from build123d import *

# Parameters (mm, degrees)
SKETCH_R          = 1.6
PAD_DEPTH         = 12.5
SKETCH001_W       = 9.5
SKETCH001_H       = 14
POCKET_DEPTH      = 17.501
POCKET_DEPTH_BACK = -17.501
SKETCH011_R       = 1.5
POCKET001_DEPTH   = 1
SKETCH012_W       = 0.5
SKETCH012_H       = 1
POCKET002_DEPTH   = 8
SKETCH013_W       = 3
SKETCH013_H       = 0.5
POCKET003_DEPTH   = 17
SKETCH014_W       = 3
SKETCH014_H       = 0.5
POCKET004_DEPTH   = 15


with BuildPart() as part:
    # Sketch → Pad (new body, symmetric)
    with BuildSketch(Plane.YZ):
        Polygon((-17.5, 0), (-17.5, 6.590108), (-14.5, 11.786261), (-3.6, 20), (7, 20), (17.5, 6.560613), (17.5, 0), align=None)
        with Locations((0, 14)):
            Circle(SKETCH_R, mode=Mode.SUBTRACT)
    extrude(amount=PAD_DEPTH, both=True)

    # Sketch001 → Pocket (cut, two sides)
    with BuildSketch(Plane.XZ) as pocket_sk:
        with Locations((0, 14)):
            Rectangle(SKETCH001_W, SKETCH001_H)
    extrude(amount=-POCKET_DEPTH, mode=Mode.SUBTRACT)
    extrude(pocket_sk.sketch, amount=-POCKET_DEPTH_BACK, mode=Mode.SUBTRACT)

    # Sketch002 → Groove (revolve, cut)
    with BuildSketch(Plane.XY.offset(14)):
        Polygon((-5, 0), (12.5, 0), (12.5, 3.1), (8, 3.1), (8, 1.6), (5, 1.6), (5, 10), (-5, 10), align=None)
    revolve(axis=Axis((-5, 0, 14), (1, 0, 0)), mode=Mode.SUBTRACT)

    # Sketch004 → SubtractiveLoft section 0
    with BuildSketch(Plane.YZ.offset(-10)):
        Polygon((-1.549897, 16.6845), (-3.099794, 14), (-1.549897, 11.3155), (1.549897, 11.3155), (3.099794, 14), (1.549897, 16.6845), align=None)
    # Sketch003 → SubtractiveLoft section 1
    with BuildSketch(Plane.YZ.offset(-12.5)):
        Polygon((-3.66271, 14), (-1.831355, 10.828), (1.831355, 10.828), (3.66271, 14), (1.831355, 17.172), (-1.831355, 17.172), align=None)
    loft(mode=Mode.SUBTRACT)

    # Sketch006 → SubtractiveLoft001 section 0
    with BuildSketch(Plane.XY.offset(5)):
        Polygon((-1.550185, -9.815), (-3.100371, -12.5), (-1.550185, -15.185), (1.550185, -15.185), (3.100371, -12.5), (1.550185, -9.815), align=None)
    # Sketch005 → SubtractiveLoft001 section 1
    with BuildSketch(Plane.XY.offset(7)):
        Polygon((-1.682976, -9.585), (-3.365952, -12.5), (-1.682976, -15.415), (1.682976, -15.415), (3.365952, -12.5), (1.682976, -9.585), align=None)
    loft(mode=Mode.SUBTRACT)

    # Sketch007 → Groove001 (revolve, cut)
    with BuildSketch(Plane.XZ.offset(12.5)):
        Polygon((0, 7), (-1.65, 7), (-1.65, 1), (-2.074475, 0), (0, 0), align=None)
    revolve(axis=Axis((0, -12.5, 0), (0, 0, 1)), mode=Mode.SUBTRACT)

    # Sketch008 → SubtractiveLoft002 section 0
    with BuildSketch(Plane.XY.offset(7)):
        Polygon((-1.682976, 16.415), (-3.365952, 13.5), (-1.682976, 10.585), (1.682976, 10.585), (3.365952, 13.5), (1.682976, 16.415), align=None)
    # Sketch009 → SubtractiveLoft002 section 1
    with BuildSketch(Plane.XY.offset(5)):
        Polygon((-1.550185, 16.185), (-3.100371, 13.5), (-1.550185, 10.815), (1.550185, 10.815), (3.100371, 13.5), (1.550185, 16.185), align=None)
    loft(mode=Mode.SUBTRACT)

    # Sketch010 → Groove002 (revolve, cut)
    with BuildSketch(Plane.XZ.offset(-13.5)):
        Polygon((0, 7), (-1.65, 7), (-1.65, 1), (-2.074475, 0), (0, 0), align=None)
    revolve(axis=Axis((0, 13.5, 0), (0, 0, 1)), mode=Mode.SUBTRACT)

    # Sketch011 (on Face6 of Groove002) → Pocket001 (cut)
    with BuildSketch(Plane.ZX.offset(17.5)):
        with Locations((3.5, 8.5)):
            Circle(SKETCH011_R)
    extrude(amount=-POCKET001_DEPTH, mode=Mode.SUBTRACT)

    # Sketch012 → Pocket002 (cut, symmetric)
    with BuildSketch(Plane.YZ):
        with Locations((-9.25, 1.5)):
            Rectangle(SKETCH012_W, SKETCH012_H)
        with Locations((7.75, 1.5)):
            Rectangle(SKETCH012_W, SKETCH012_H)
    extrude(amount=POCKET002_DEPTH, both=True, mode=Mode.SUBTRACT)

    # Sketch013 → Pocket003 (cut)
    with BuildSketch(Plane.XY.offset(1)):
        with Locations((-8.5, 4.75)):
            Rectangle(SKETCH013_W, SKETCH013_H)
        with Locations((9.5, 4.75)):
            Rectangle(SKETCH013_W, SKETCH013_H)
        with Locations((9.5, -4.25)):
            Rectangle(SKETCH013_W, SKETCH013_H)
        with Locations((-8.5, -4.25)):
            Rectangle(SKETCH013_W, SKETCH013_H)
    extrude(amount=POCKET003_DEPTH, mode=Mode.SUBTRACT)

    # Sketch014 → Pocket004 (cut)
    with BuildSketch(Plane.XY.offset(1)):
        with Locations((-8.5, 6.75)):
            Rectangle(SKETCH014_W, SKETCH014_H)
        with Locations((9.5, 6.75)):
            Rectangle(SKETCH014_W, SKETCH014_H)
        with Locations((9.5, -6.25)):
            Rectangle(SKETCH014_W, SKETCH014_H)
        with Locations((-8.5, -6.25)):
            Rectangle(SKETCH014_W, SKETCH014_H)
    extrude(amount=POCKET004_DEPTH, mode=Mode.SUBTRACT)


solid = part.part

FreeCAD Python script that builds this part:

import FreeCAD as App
import Part
import Sketcher
from FreeCAD import Vector
Q = App.Units.Quantity

doc = App.newDocument("Part")
params = doc.addObject("Spreadsheet::Sheet", "Params")
for row, (alias, value) in enumerate([
    ("sketch1_diameter", "3.2 mm"),
    ("sketch1_width", "35 mm"),
    ("sketch1_length", "6 mm"),
    ("sketch1_width2", "10.6 mm"),
    ("pad1_length", "25 mm"),
    ("sketch2_height", "14 mm"),
    ("sketch2_width", "9.5 mm"),
    ("sketch3_width", "3 mm"),
    ("sketch3_width2", "10 mm"),
    ("sketch3_width3", "17.5 mm"),
    ("sketch3_height", "3.1 mm"),
    ("sketch3_height2", "1.5 mm"),
    ("groove_angle", "360 deg"),
    ("sketch8_height", "6 mm"),
    ("sketch8_height2", "7 mm"),
    ("sketch8_width", "1.65 mm"),
    ("groove2_angle", "360 deg"),
    ("sketch11_height", "6 mm"),
    ("sketch11_height2", "7 mm"),
    ("sketch11_width", "1.65 mm"),
    ("groove3_angle", "360 deg"),
    ("sketch12_diameter", "3 mm"),
    ("pocket2_length", "1 mm"),
    ("sketch13_height", "1 mm"),
    ("sketch13_width", "0.5 mm"),
    ("pocket3_length", "16 mm"),
    ("sketch14_width", "3 mm"),
    ("sketch14_height", "0.5 mm"),
    ("pocket4_length", "17 mm"),
    ("sketch15_width", "3 mm"),
    ("sketch15_height", "0.5 mm"),
    ("pocket5_length", "15 mm"),
], start=1):
    params.set(f"A{row}", alias)
    params.set(f"B{row}", "=" + value)
    params.setAlias(f"B{row}", alias)

body = doc.addObject("PartDesign::Body", "Body")

# Sketch on YZ plane
sketch1 = body.newObject("Sketcher::SketchObject", "Sketch")
sketch1.AttachmentSupport = (doc.getObject("YZ_Plane"), [""])
sketch1.MapMode = "FlatFace"
sketch1.addGeometry([
    Part.LineSegment(Vector(-17.5, 6.6, 0), Vector(-17.5, 0, 0)),  # 0
    Part.LineSegment(Vector(-17.5, 0, 0), Vector(17.5, 0, 0)),  # 1
    Part.LineSegment(Vector(17.5, 0, 0), Vector(17.5, 6.6, 0)),  # 2
    Part.LineSegment(Vector(17.5, 6.6, 0), Vector(7, 20, 0)),  # 3
    Part.LineSegment(Vector(7, 20, 0), Vector(-3.6, 20, 0)),  # 4
    Part.LineSegment(Vector(-3.6, 20, 0), Vector(-14.5, 11.8, 0)),  # 5
    Part.LineSegment(Vector(-14.5, 11.8, 0), Vector(-17.5, 6.6, 0)),  # 6
    Part.Circle(Vector(0, 14, 0), Vector(0, 0, 1), 1.6),  # 7
], False)
sketch1.addConstraint([
    Sketcher.Constraint("Coincident", 0, 2, 1, 1),
    Sketcher.Constraint("Coincident", 1, 2, 2, 1),
    Sketcher.Constraint("Coincident", 2, 2, 3, 1),
    Sketcher.Constraint("Coincident", 3, 2, 4, 1),
    Sketcher.Constraint("Coincident", 4, 2, 5, 1),
    Sketcher.Constraint("Coincident", 5, 2, 6, 1),
    Sketcher.Constraint("Coincident", 6, 2, 0, 1),
    Sketcher.Constraint("Vertical", 0),
    Sketcher.Constraint("Horizontal", 1),
    Sketcher.Constraint("Vertical", 2),
    Sketcher.Constraint("Horizontal", 4),
    Sketcher.Constraint("Symmetric", 0, 2, 1, 2, -1, 1),
    Sketcher.Constraint("PointOnObject", 7, 3, -2),
    Sketcher.Constraint("Diameter", 7, Q("3.2 mm")),
    Sketcher.Constraint("DistanceX", 1, 1, 1, 2, Q("35 mm")),
    Sketcher.Constraint("Angle", 3, Q("128 deg")),
    Sketcher.Constraint("Angle", 5, Q("-143 deg")),
    Sketcher.Constraint("Angle", 6, Q("-119.999997 deg")),
    Sketcher.Constraint("Distance", 6, Q("6 mm")),
    Sketcher.Constraint("DistanceX", 4, 2, 4, 1, Q("10.6 mm")),
    Sketcher.Constraint("DistanceY", -1, 1, 7, 3, Q("14 mm")),
    Sketcher.Constraint("DistanceX", -1, 1, 3, 2, Q("7 mm")),
    Sketcher.Constraint("DistanceY", -1, 1, 3, 2, Q("20 mm")),
])
sketch1.setExpression("Constraints[13]", "Params.sketch1_diameter")
sketch1.setExpression("Constraints[14]", "Params.sketch1_width")
sketch1.setExpression("Constraints[18]", "Params.sketch1_length")
sketch1.setExpression("Constraints[19]", "Params.sketch1_width2")
pad1 = body.newObject("PartDesign::Pad", "Pad")
pad1.Profile = sketch1
pad1.setExpression("Length", "Params.pad1_length")
pad1.Midplane = True

# Sketch on XZ plane
sketch2 = body.newObject("Sketcher::SketchObject", "Sketch001")
sketch2.AttachmentSupport = (doc.getObject("XZ_Plane"), [""])
sketch2.MapMode = "FlatFace"
sketch2.addGeometry([
    Part.LineSegment(Vector(-5, 21, 0), Vector(-5, 7, 0)),
    Part.LineSegment(Vector(-5, 7, 0), Vector(5, 7, 0)),
    Part.LineSegment(Vector(5, 7, 0), Vector(5, 21, 0)),
    Part.LineSegment(Vector(5, 21, 0), Vector(-5, 21, 0)),
], False)
sketch2.addConstraint([
    Sketcher.Constraint("Coincident", 0, 2, 1, 1),
    Sketcher.Constraint("Coincident", 1, 2, 2, 1),
    Sketcher.Constraint("Coincident", 2, 2, 3, 1),
    Sketcher.Constraint("Coincident", 3, 2, 0, 1),
    Sketcher.Constraint("Vertical", 0),
    Sketcher.Constraint("Horizontal", 1),
    Sketcher.Constraint("Vertical", 2),
    Sketcher.Constraint("Horizontal", 3),
    Sketcher.Constraint("DistanceY", 0, 2, 0, 1, Q("14 mm")),
    Sketcher.Constraint("DistanceX", 1, 1, 1, 2, Q("9.5 mm")),
    Sketcher.Constraint("DistanceY", -1, 1, 0, 2, Q("7 mm")),
    Sketcher.Constraint("DistanceX", 0, 2, -1, 1, Q("4.75 mm")),
])
sketch2.setExpression("Constraints[8]", "Params.sketch2_height")
sketch2.setExpression("Constraints[9]", "Params.sketch2_width")
pocket1 = body.newObject("PartDesign::Pocket", "Pocket")
pocket1.Profile = sketch2
pocket1.Type = "ThroughAll"
pocket1.Midplane = True

# Sketch on XY plane
sketch3 = body.newObject("Sketcher::SketchObject", "Sketch002")
sketch3.AttachmentSupport = (doc.getObject("XY_Plane"), [""])
sketch3.MapMode = "FlatFace"
sketch3.AttachmentOffset = App.Placement(Vector(0, 0, 14), App.Rotation())
sketch3.addGeometry([
    Part.LineSegment(Vector(-5, 0, 0), Vector(12.5, 0, 0)),  # 0
    Part.LineSegment(Vector(12.5, 0, 0), Vector(12.5, 3.1, 0)),  # 1
    Part.LineSegment(Vector(12.5, 3.1, 0), Vector(8, 3.1, 0)),  # 2
    Part.LineSegment(Vector(8, 3.1, 0), Vector(8, 1.6, 0)),  # 3
    Part.LineSegment(Vector(8, 1.6, 0), Vector(5, 1.6, 0)),  # 4
    Part.LineSegment(Vector(5, 1.6, 0), Vector(5, 10, 0)),  # 5
    Part.LineSegment(Vector(5, 10, 0), Vector(-5, 10, 0)),  # 6
    Part.LineSegment(Vector(-5, 10, 0), Vector(-5, 0, 0)),  # 7
], False)
sketch3.addConstraint([
    Sketcher.Constraint("Coincident", 0, 2, 1, 1),
    Sketcher.Constraint("Coincident", 1, 2, 2, 1),
    Sketcher.Constraint("Coincident", 2, 2, 3, 1),
    Sketcher.Constraint("Coincident", 3, 2, 4, 1),
    Sketcher.Constraint("Coincident", 4, 2, 5, 1),
    Sketcher.Constraint("Coincident", 5, 2, 6, 1),
    Sketcher.Constraint("Coincident", 6, 2, 7, 1),
    Sketcher.Constraint("Coincident", 7, 2, 0, 1),
    Sketcher.Constraint("Horizontal", 0),
    Sketcher.Constraint("Vertical", 1),
    Sketcher.Constraint("Horizontal", 2),
    Sketcher.Constraint("Vertical", 3),
    Sketcher.Constraint("Horizontal", 4),
    Sketcher.Constraint("Vertical", 5),
    Sketcher.Constraint("Horizontal", 6),
    Sketcher.Constraint("Vertical", 7),
    Sketcher.Constraint("PointOnObject", 0, 2, -1),
    Sketcher.Constraint("Equal", 6, 7),
    Sketcher.Constraint("DistanceX", 4, 2, 4, 1, Q("3 mm")),
    Sketcher.Constraint("DistanceX", 6, 2, 6, 1, Q("10 mm")),
    Sketcher.Constraint("DistanceX", 0, 1, 0, 2, Q("17.5 mm")),
    Sketcher.Constraint("DistanceY", 1, 1, 1, 2, Q("3.1 mm")),
    Sketcher.Constraint("DistanceY", 3, 2, 3, 1, Q("1.5 mm")),
    Sketcher.Constraint("DistanceX", -1, 1, 2, 2, Q("8 mm")),
])
sketch3.setExpression("Constraints[18]", "Params.sketch3_width")
sketch3.setExpression("Constraints[19]", "Params.sketch3_width2")
sketch3.setExpression("Constraints[20]", "Params.sketch3_width3")
sketch3.setExpression("Constraints[21]", "Params.sketch3_height")
sketch3.setExpression("Constraints[22]", "Params.sketch3_height2")
groove = body.newObject("PartDesign::Groove", "Groove")
groove.Profile = sketch3
groove.ReferenceAxis = (sketch3, ["H_Axis"])
groove.setExpression("Angle", "Params.groove_angle")

# Sketch on YZ plane
sketch4 = body.newObject("Sketcher::SketchObject", "Sketch003")
sketch4.AttachmentSupport = (doc.getObject("YZ_Plane"), [""])
sketch4.MapMode = "FlatFace"
sketch4.AttachmentOffset = App.Placement(Vector(0, 0, -10), App.Rotation())
sketch4.addGeometry([
    Part.LineSegment(Vector(-1.5, 16.7, 0), Vector(-3.1, 14, 0)),  # 0
    Part.LineSegment(Vector(-3.1, 14, 0), Vector(-1.5, 11.3, 0)),  # 1
    Part.LineSegment(Vector(-1.5, 11.3, 0), Vector(1.5, 11.3, 0)),  # 2
    Part.LineSegment(Vector(1.5, 11.3, 0), Vector(3.1, 14, 0)),  # 3
    Part.LineSegment(Vector(3.1, 14, 0), Vector(1.5, 16.7, 0)),  # 4
    Part.LineSegment(Vector(1.5, 16.7, 0), Vector(-1.5, 16.7, 0)),  # 5
], False)
sketch4.addConstraint([
    Sketcher.Constraint("Coincident", 0, 2, 1, 1),
    Sketcher.Constraint("Coincident", 1, 2, 2, 1),
    Sketcher.Constraint("Coincident", 2, 2, 3, 1),
    Sketcher.Constraint("Coincident", 3, 2, 4, 1),
    Sketcher.Constraint("Coincident", 4, 2, 5, 1),
    Sketcher.Constraint("Coincident", 5, 2, 0, 1),
    Sketcher.Constraint("Horizontal", 2),
    Sketcher.Constraint("Horizontal", 5),
    Sketcher.Constraint("Symmetric", 0, 2, 3, 2, -2),
    Sketcher.Constraint("Parallel", 0, 3),
    Sketcher.Constraint("Parallel", 1, 4),
    Sketcher.Constraint("Vertical", 2, 2, 4, 2),
    Sketcher.Constraint("Vertical", 1, 2, 5, 2),
    Sketcher.Constraint("Angle", 0, Q("-120.000003 deg")),
    Sketcher.Constraint("DistanceY", -1, 1, 0, 2, Q("14 mm")),
    Sketcher.Constraint("DistanceY", 2, 2, 4, 2, Q("5.369 mm")),
    Sketcher.Constraint("DistanceX", 2, 1, 2, 2, Q("3.099794 mm")),
])

# Sketch on YZ plane
sketch5 = body.newObject("Sketcher::SketchObject", "Sketch004")
sketch5.AttachmentSupport = (doc.getObject("YZ_Plane"), [""])
sketch5.MapMode = "FlatFace"
sketch5.AttachmentOffset = App.Placement(Vector(0, 0, -12.5), App.Rotation())
sketch5.addGeometry([
    Part.LineSegment(Vector(-3.7, 14, 0), Vector(-1.8, 10.8, 0)),  # 0
    Part.LineSegment(Vector(-1.8, 10.8, 0), Vector(1.8, 10.8, 0)),  # 1
    Part.LineSegment(Vector(1.8, 10.8, 0), Vector(3.7, 14, 0)),  # 2
    Part.LineSegment(Vector(3.7, 14, 0), Vector(1.8, 17.2, 0)),  # 3
    Part.LineSegment(Vector(1.8, 17.2, 0), Vector(-1.8, 17.2, 0)),  # 4
    Part.LineSegment(Vector(-1.8, 17.2, 0), Vector(-3.7, 14, 0)),  # 5
], False)
sketch5.addConstraint([
    Sketcher.Constraint("Coincident", 0, 2, 1, 1),
    Sketcher.Constraint("Coincident", 1, 2, 2, 1),
    Sketcher.Constraint("Coincident", 2, 2, 3, 1),
    Sketcher.Constraint("Coincident", 3, 2, 4, 1),
    Sketcher.Constraint("Coincident", 4, 2, 5, 1),
    Sketcher.Constraint("Coincident", 5, 2, 0, 1),
    Sketcher.Constraint("Horizontal", 1),
    Sketcher.Constraint("Horizontal", 4),
    Sketcher.Constraint("Symmetric", 2, 2, 5, 2, -2),
    Sketcher.Constraint("Parallel", 0, 3),
    Sketcher.Constraint("Parallel", 2, 5),
    Sketcher.Constraint("Vertical", 1, 2, 3, 2),
    Sketcher.Constraint("Vertical", 0, 2, 4, 2),
    Sketcher.Constraint("Angle", 0, Q("-60.000001 deg")),
    Sketcher.Constraint("DistanceY", -1, 1, 2, 2, Q("14 mm")),
    Sketcher.Constraint("DistanceY", -1, 1, 0, 2, Q("10.828 mm")),
    Sketcher.Constraint("DistanceX", 1, 1, 1, 2, Q("3.66271 mm")),
])

subtractiveloft = body.newObject("PartDesign::SubtractiveLoft", "SubtractiveLoft")
subtractiveloft.Profile = sketch4
subtractiveloft.Sections = [sketch5]

# Sketch on XY plane
sketch6 = body.newObject("Sketcher::SketchObject", "Sketch005")
sketch6.AttachmentSupport = (doc.getObject("XY_Plane"), [""])
sketch6.MapMode = "FlatFace"
sketch6.AttachmentOffset = App.Placement(Vector(0, 0, 5), App.Rotation())
sketch6.addGeometry([
    Part.LineSegment(Vector(-1.6, -9.8, 0), Vector(-3.1, -12.5, 0)),  # 0
    Part.LineSegment(Vector(-3.1, -12.5, 0), Vector(-1.6, -15.2, 0)),  # 1
    Part.LineSegment(Vector(-1.6, -15.2, 0), Vector(1.6, -15.2, 0)),  # 2
    Part.LineSegment(Vector(1.6, -15.2, 0), Vector(3.1, -12.5, 0)),  # 3
    Part.LineSegment(Vector(3.1, -12.5, 0), Vector(1.6, -9.8, 0)),  # 4
    Part.LineSegment(Vector(1.6, -9.8, 0), Vector(-1.6, -9.8, 0)),  # 5
], False)
sketch6.addConstraint([
    Sketcher.Constraint("Coincident", 0, 2, 1, 1),
    Sketcher.Constraint("Coincident", 1, 2, 2, 1),
    Sketcher.Constraint("Coincident", 2, 2, 3, 1),
    Sketcher.Constraint("Coincident", 3, 2, 4, 1),
    Sketcher.Constraint("Coincident", 4, 2, 5, 1),
    Sketcher.Constraint("Coincident", 5, 2, 0, 1),
    Sketcher.Constraint("Horizontal", 2),
    Sketcher.Constraint("Horizontal", 5),
    Sketcher.Constraint("Symmetric", 0, 2, 3, 2, -2),
    Sketcher.Constraint("Parallel", 0, 3),
    Sketcher.Constraint("Parallel", 1, 4),
    Sketcher.Constraint("Vertical", 2, 2, 4, 2),
    Sketcher.Constraint("Vertical", 1, 2, 5, 2),
    Sketcher.Constraint("Angle", 0, Q("-120.000008 deg")),
    Sketcher.Constraint("DistanceY", 0, 2, -1, 1, Q("12.5 mm")),
    Sketcher.Constraint("DistanceY", 2, 2, 4, 2, Q("5.37 mm")),
    Sketcher.Constraint("DistanceX", 2, 1, 2, 2, Q("3.10037 mm")),
])

# Sketch on XY plane
sketch7 = body.newObject("Sketcher::SketchObject", "Sketch006")
sketch7.AttachmentSupport = (doc.getObject("XY_Plane"), [""])
sketch7.MapMode = "FlatFace"
sketch7.AttachmentOffset = App.Placement(Vector(0, 0, 7), App.Rotation())
sketch7.addGeometry([
    Part.LineSegment(Vector(-1.7, -9.6, 0), Vector(-3.4, -12.5, 0)),  # 0
    Part.LineSegment(Vector(-3.4, -12.5, 0), Vector(-1.7, -15.4, 0)),  # 1
    Part.LineSegment(Vector(-1.7, -15.4, 0), Vector(1.7, -15.4, 0)),  # 2
    Part.LineSegment(Vector(1.7, -15.4, 0), Vector(3.4, -12.5, 0)),  # 3
    Part.LineSegment(Vector(3.4, -12.5, 0), Vector(1.7, -9.6, 0)),  # 4
    Part.LineSegment(Vector(1.7, -9.6, 0), Vector(-1.7, -9.6, 0)),  # 5
], False)
sketch7.addConstraint([
    Sketcher.Constraint("Coincident", 0, 2, 1, 1),
    Sketcher.Constraint("Coincident", 1, 2, 2, 1),
    Sketcher.Constraint("Coincident", 2, 2, 3, 1),
    Sketcher.Constraint("Coincident", 3, 2, 4, 1),
    Sketcher.Constraint("Coincident", 4, 2, 5, 1),
    Sketcher.Constraint("Coincident", 5, 2, 0, 1),
    Sketcher.Constraint("Horizontal", 2),
    Sketcher.Constraint("Horizontal", 5),
    Sketcher.Constraint("Symmetric", 0, 2, 3, 2, -2),
    Sketcher.Constraint("Parallel", 0, 3),
    Sketcher.Constraint("Parallel", 1, 4),
    Sketcher.Constraint("Vertical", 2, 2, 4, 2),
    Sketcher.Constraint("Vertical", 1, 2, 5, 2),
    Sketcher.Constraint("Angle", 0, Q("-119.999999 deg")),
    Sketcher.Constraint("DistanceY", 0, 2, -1, 1, Q("12.5 mm")),
    Sketcher.Constraint("DistanceY", 2, 2, 4, 2, Q("5.83 mm")),
    Sketcher.Constraint("DistanceX", 2, 1, 2, 2, Q("3.365952 mm")),
])

subtractiveloft2 = body.newObject("PartDesign::SubtractiveLoft", "SubtractiveLoft001")
subtractiveloft2.Profile = sketch6
subtractiveloft2.Sections = [sketch7]

# Sketch on XZ plane
sketch8 = body.newObject("Sketcher::SketchObject", "Sketch007")
sketch8.AttachmentSupport = (doc.getObject("XZ_Plane"), [""])
sketch8.MapMode = "FlatFace"
sketch8.AttachmentOffset = App.Placement(Vector(0, 0, 12.5), App.Rotation())
sketch8.addGeometry([
    Part.LineSegment(Vector(0, 7, 0), Vector(-1.6, 7, 0)),  # 0
    Part.LineSegment(Vector(-1.6, 7, 0), Vector(-1.6, 1, 0)),  # 1
    Part.LineSegment(Vector(-1.6, 1, 0), Vector(-2.1, 0, 0)),  # 2
    Part.LineSegment(Vector(-2.1, 0, 0), Vector(0, 0, 0)),  # 3
    Part.LineSegment(Vector(0, 0, 0), Vector(0, 7, 0)),  # 4
], False)
sketch8.addConstraint([
    Sketcher.Constraint("Coincident", 0, 2, 1, 1),
    Sketcher.Constraint("Coincident", 1, 2, 2, 1),
    Sketcher.Constraint("Coincident", 2, 2, 3, 1),
    Sketcher.Constraint("Coincident", 3, 2, 4, 1),
    Sketcher.Constraint("Coincident", 4, 2, 0, 1),
    Sketcher.Constraint("Horizontal", 0),
    Sketcher.Constraint("Vertical", 1),
    Sketcher.Constraint("Horizontal", 3),
    Sketcher.Constraint("Vertical", 4),
    Sketcher.Constraint("Coincident", 3, 2, -1, 1),
    Sketcher.Constraint("DistanceY", 1, 2, 1, 1, Q("6 mm")),
    Sketcher.Constraint("DistanceY", 4, 1, 4, 2, Q("7 mm")),
    Sketcher.Constraint("Angle", 2, Q("-113.000009 deg")),
    Sketcher.Constraint("DistanceX", 0, 2, 0, 1, Q("1.65 mm")),
])
sketch8.setExpression("Constraints[10]", "Params.sketch8_height")
sketch8.setExpression("Constraints[11]", "Params.sketch8_height2")
sketch8.setExpression("Constraints[13]", "Params.sketch8_width")
groove2 = body.newObject("PartDesign::Groove", "Groove001")
groove2.Profile = sketch8
groove2.ReferenceAxis = (sketch8, ["V_Axis"])
groove2.setExpression("Angle", "Params.groove2_angle")

# Sketch on XY plane
sketch9 = body.newObject("Sketcher::SketchObject", "Sketch008")
sketch9.AttachmentSupport = (doc.getObject("XY_Plane"), [""])
sketch9.MapMode = "FlatFace"
sketch9.AttachmentOffset = App.Placement(Vector(0, 0, 7), App.Rotation())
sketch9.addGeometry([
    Part.LineSegment(Vector(-1.7, 16.4, 0), Vector(-3.4, 13.5, 0)),  # 0
    Part.LineSegment(Vector(-3.4, 13.5, 0), Vector(-1.7, 10.6, 0)),  # 1
    Part.LineSegment(Vector(-1.7, 10.6, 0), Vector(1.7, 10.6, 0)),  # 2
    Part.LineSegment(Vector(1.7, 10.6, 0), Vector(3.4, 13.5, 0)),  # 3
    Part.LineSegment(Vector(3.4, 13.5, 0), Vector(1.7, 16.4, 0)),  # 4
    Part.LineSegment(Vector(1.7, 16.4, 0), Vector(-1.7, 16.4, 0)),  # 5
], False)
sketch9.addConstraint([
    Sketcher.Constraint("Coincident", 0, 2, 1, 1),
    Sketcher.Constraint("Coincident", 1, 2, 2, 1),
    Sketcher.Constraint("Coincident", 2, 2, 3, 1),
    Sketcher.Constraint("Coincident", 3, 2, 4, 1),
    Sketcher.Constraint("Coincident", 4, 2, 5, 1),
    Sketcher.Constraint("Coincident", 5, 2, 0, 1),
    Sketcher.Constraint("Horizontal", 2),
    Sketcher.Constraint("Horizontal", 5),
    Sketcher.Constraint("Symmetric", 0, 2, 3, 2, -2),
    Sketcher.Constraint("Parallel", 0, 3),
    Sketcher.Constraint("Parallel", 1, 4),
    Sketcher.Constraint("Vertical", 2, 2, 4, 2),
    Sketcher.Constraint("Vertical", 1, 2, 5, 2),
    Sketcher.Constraint("Angle", 0, Q("-119.999999 deg")),
    Sketcher.Constraint("DistanceY", -1, 1, 0, 2, Q("13.5 mm")),
    Sketcher.Constraint("DistanceY", 2, 2, 4, 2, Q("5.83 mm")),
    Sketcher.Constraint("DistanceX", 2, 1, 2, 2, Q("3.365952 mm")),
])

# Sketch on XY plane
sketch10 = body.newObject("Sketcher::SketchObject", "Sketch009")
sketch10.AttachmentSupport = (doc.getObject("XY_Plane"), [""])
sketch10.MapMode = "FlatFace"
sketch10.AttachmentOffset = App.Placement(Vector(0, 0, 5), App.Rotation())
sketch10.addGeometry([
    Part.LineSegment(Vector(-1.6, 16.2, 0), Vector(-3.1, 13.5, 0)),  # 0
    Part.LineSegment(Vector(-3.1, 13.5, 0), Vector(-1.6, 10.8, 0)),  # 1
    Part.LineSegment(Vector(-1.6, 10.8, 0), Vector(1.6, 10.8, 0)),  # 2
    Part.LineSegment(Vector(1.6, 10.8, 0), Vector(3.1, 13.5, 0)),  # 3
    Part.LineSegment(Vector(3.1, 13.5, 0), Vector(1.6, 16.2, 0)),  # 4
    Part.LineSegment(Vector(1.6, 16.2, 0), Vector(-1.6, 16.2, 0)),  # 5
], False)
sketch10.addConstraint([
    Sketcher.Constraint("Coincident", 0, 2, 1, 1),
    Sketcher.Constraint("Coincident", 1, 2, 2, 1),
    Sketcher.Constraint("Coincident", 2, 2, 3, 1),
    Sketcher.Constraint("Coincident", 3, 2, 4, 1),
    Sketcher.Constraint("Coincident", 4, 2, 5, 1),
    Sketcher.Constraint("Coincident", 5, 2, 0, 1),
    Sketcher.Constraint("Horizontal", 2),
    Sketcher.Constraint("Horizontal", 5),
    Sketcher.Constraint("Symmetric", 0, 2, 3, 2, -2),
    Sketcher.Constraint("Parallel", 0, 3),
    Sketcher.Constraint("Parallel", 1, 4),
    Sketcher.Constraint("Vertical", 2, 2, 4, 2),
    Sketcher.Constraint("Vertical", 1, 2, 5, 2),
    Sketcher.Constraint("Angle", 0, Q("-120.000008 deg")),
    Sketcher.Constraint("DistanceY", -1, 1, 0, 2, Q("13.5 mm")),
    Sketcher.Constraint("DistanceY", 2, 2, 4, 2, Q("5.37 mm")),
    Sketcher.Constraint("DistanceX", 2, 1, 2, 2, Q("3.10037 mm")),
])

subtractiveloft3 = body.newObject("PartDesign::SubtractiveLoft", "SubtractiveLoft002")
subtractiveloft3.Profile = sketch9
subtractiveloft3.Sections = [sketch10]

# Sketch on XZ plane
sketch11 = body.newObject("Sketcher::SketchObject", "Sketch010")
sketch11.AttachmentSupport = (doc.getObject("XZ_Plane"), [""])
sketch11.MapMode = "FlatFace"
sketch11.AttachmentOffset = App.Placement(Vector(0, 0, -13.5), App.Rotation())
sketch11.addGeometry([
    Part.LineSegment(Vector(0, 7, 0), Vector(-1.6, 7, 0)),  # 0
    Part.LineSegment(Vector(-1.6, 7, 0), Vector(-1.6, 1, 0)),  # 1
    Part.LineSegment(Vector(-1.6, 1, 0), Vector(-2.1, 0, 0)),  # 2
    Part.LineSegment(Vector(-2.1, 0, 0), Vector(0, 0, 0)),  # 3
    Part.LineSegment(Vector(0, 0, 0), Vector(0, 7, 0)),  # 4
], False)
sketch11.addConstraint([
    Sketcher.Constraint("Coincident", 0, 2, 1, 1),
    Sketcher.Constraint("Coincident", 1, 2, 2, 1),
    Sketcher.Constraint("Coincident", 2, 2, 3, 1),
    Sketcher.Constraint("Coincident", 3, 2, 4, 1),
    Sketcher.Constraint("Coincident", 4, 2, 0, 1),
    Sketcher.Constraint("Horizontal", 0),
    Sketcher.Constraint("Vertical", 1),
    Sketcher.Constraint("Horizontal", 3),
    Sketcher.Constraint("Vertical", 4),
    Sketcher.Constraint("Coincident", 3, 2, -1, 1),
    Sketcher.Constraint("DistanceY", 1, 2, 1, 1, Q("6 mm")),
    Sketcher.Constraint("DistanceY", 4, 1, 4, 2, Q("7 mm")),
    Sketcher.Constraint("Angle", 2, Q("-113.000009 deg")),
    Sketcher.Constraint("DistanceX", 0, 2, 0, 1, Q("1.65 mm")),
])
sketch11.setExpression("Constraints[10]", "Params.sketch11_height")
sketch11.setExpression("Constraints[11]", "Params.sketch11_height2")
sketch11.setExpression("Constraints[13]", "Params.sketch11_width")
groove3 = body.newObject("PartDesign::Groove", "Groove002")
groove3.Profile = sketch11
groove3.ReferenceAxis = (sketch11, ["V_Axis"])
groove3.setExpression("Angle", "Params.groove3_angle")

# Sketch on XZ plane
sketch12 = body.newObject("Sketcher::SketchObject", "Sketch011")
sketch12.AttachmentSupport = (doc.getObject("XZ_Plane"), [""])
sketch12.MapMode = "FlatFace"
sketch12.AttachmentOffset = App.Placement(Vector(0, 0, -17.5), App.Rotation())
sketch12.addGeometry(Part.Circle(Vector(8.5, 3.5, 0), Vector(0, 0, 1), 1.5), False)
sketch12.addConstraint([
    Sketcher.Constraint("Diameter", 0, Q("3 mm")),
    Sketcher.Constraint("DistanceX", -1, 1, 0, 3, Q("8.5 mm")),
    Sketcher.Constraint("DistanceY", -1, 1, 0, 3, Q("3.5 mm")),
])
sketch12.setExpression("Constraints[0]", "Params.sketch12_diameter")
pocket2 = body.newObject("PartDesign::Pocket", "Pocket001")
pocket2.Profile = sketch12
pocket2.setExpression("Length", "Params.pocket2_length")
pocket2.Reversed = True

# Sketch on YZ plane
sketch13 = body.newObject("Sketcher::SketchObject", "Sketch012")
sketch13.AttachmentSupport = (doc.getObject("YZ_Plane"), [""])
sketch13.MapMode = "FlatFace"
sketch13.addGeometry([
    Part.LineSegment(Vector(-9.5, 2, 0), Vector(-9.5, 1, 0)),  # 0
    Part.LineSegment(Vector(-9.5, 1, 0), Vector(-9, 1, 0)),  # 1
    Part.LineSegment(Vector(-9, 1, 0), Vector(-9, 2, 0)),  # 2
    Part.LineSegment(Vector(-9, 2, 0), Vector(-9.5, 2, 0)),  # 3
    Part.LineSegment(Vector(7.5, 2, 0), Vector(7.5, 1, 0)),  # 4
    Part.LineSegment(Vector(7.5, 1, 0), Vector(8, 1, 0)),  # 5
    Part.LineSegment(Vector(8, 1, 0), Vector(8, 2, 0)),  # 6
    Part.LineSegment(Vector(8, 2, 0), Vector(7.5, 2, 0)),  # 7
], False)
sketch13.addConstraint([
    Sketcher.Constraint("Coincident", 0, 2, 1, 1),
    Sketcher.Constraint("Coincident", 1, 2, 2, 1),
    Sketcher.Constraint("Coincident", 2, 2, 3, 1),
    Sketcher.Constraint("Coincident", 3, 2, 0, 1),
    Sketcher.Constraint("Coincident", 4, 2, 5, 1),
    Sketcher.Constraint("Coincident", 5, 2, 6, 1),
    Sketcher.Constraint("Coincident", 6, 2, 7, 1),
    Sketcher.Constraint("Coincident", 7, 2, 4, 1),
    Sketcher.Constraint("Vertical", 0),
    Sketcher.Constraint("Horizontal", 1),
    Sketcher.Constraint("Vertical", 2),
    Sketcher.Constraint("Horizontal", 3),
    Sketcher.Constraint("Vertical", 4),
    Sketcher.Constraint("Horizontal", 5),
    Sketcher.Constraint("Vertical", 6),
    Sketcher.Constraint("Horizontal", 7),
    Sketcher.Constraint("Horizontal", 1, 2, 4, 2),
    Sketcher.Constraint("Horizontal", 3, 2, 6, 2),
    Sketcher.Constraint("Equal", 3, 5),
    Sketcher.Constraint("DistanceY", 0, 2, 0, 1, Q("1 mm")),
    Sketcher.Constraint("DistanceX", 1, 1, 1, 2, Q("0.5 mm")),
    Sketcher.Constraint("DistanceY", -1, 1, 0, 2, Q("1 mm")),
    Sketcher.Constraint("DistanceX", 1, 2, -1, 1, Q("9 mm")),
    Sketcher.Constraint("DistanceX", -1, 1, 5, 2, Q("8 mm")),
])
sketch13.setExpression("Constraints[19]", "Params.sketch13_height")
sketch13.setExpression("Constraints[20]", "Params.sketch13_width")
pocket3 = body.newObject("PartDesign::Pocket", "Pocket002")
pocket3.Profile = sketch13
pocket3.setExpression("Length", "Params.pocket3_length")
pocket3.Midplane = True

# Sketch on XY plane
sketch14 = body.newObject("Sketcher::SketchObject", "Sketch013")
sketch14.AttachmentSupport = (doc.getObject("XY_Plane"), [""])
sketch14.MapMode = "FlatFace"
sketch14.AttachmentOffset = App.Placement(Vector(0, 0, 1), App.Rotation())
sketch14.addGeometry([
    Part.LineSegment(Vector(-10, 5, 0), Vector(-10, 4.5, 0)),  # 0
    Part.LineSegment(Vector(-10, 4.5, 0), Vector(-7, 4.5, 0)),  # 1
    Part.LineSegment(Vector(-7, 4.5, 0), Vector(-7, 5, 0)),  # 2
    Part.LineSegment(Vector(-7, 5, 0), Vector(-10, 5, 0)),  # 3
    Part.LineSegment(Vector(8, 5, 0), Vector(8, 4.5, 0)),  # 4
    Part.LineSegment(Vector(8, 4.5, 0), Vector(11, 4.5, 0)),  # 5
    Part.LineSegment(Vector(11, 4.5, 0), Vector(11, 5, 0)),  # 6
    Part.LineSegment(Vector(11, 5, 0), Vector(8, 5, 0)),  # 7
    Part.LineSegment(Vector(8, -4, 0), Vector(8, -4.5, 0)),  # 8
    Part.LineSegment(Vector(8, -4.5, 0), Vector(11, -4.5, 0)),  # 9
    Part.LineSegment(Vector(11, -4.5, 0), Vector(11, -4, 0)),  # 10
    Part.LineSegment(Vector(11, -4, 0), Vector(8, -4, 0)),  # 11
    Part.LineSegment(Vector(-10, -4, 0), Vector(-10, -4.5, 0)),  # 12
    Part.LineSegment(Vector(-10, -4.5, 0), Vector(-7, -4.5, 0)),  # 13
    Part.LineSegment(Vector(-7, -4.5, 0), Vector(-7, -4, 0)),  # 14
    Part.LineSegment(Vector(-7, -4, 0), Vector(-10, -4, 0)),  # 15
], False)
sketch14.addConstraint([
    Sketcher.Constraint("Coincident", 0, 2, 1, 1),
    Sketcher.Constraint("Coincident", 1, 2, 2, 1),
    Sketcher.Constraint("Coincident", 2, 2, 3, 1),
    Sketcher.Constraint("Coincident", 3, 2, 0, 1),
    Sketcher.Constraint("Coincident", 4, 2, 5, 1),
    Sketcher.Constraint("Coincident", 5, 2, 6, 1),
    Sketcher.Constraint("Coincident", 6, 2, 7, 1),
    Sketcher.Constraint("Coincident", 7, 2, 4, 1),
    Sketcher.Constraint("Coincident", 8, 2, 9, 1),
    Sketcher.Constraint("Coincident", 9, 2, 10, 1),
    Sketcher.Constraint("Coincident", 10, 2, 11, 1),
    Sketcher.Constraint("Coincident", 11, 2, 8, 1),
    Sketcher.Constraint("Coincident", 12, 2, 13, 1),
    Sketcher.Constraint("Coincident", 13, 2, 14, 1),
    Sketcher.Constraint("Coincident", 14, 2, 15, 1),
    Sketcher.Constraint("Coincident", 15, 2, 12, 1),
    Sketcher.Constraint("Vertical", 0),
    Sketcher.Constraint("Horizontal", 1),
    Sketcher.Constraint("Vertical", 2),
    Sketcher.Constraint("Horizontal", 3),
    Sketcher.Constraint("Vertical", 4),
    Sketcher.Constraint("Horizontal", 5),
    Sketcher.Constraint("Vertical", 6),
    Sketcher.Constraint("Horizontal", 7),
    Sketcher.Constraint("Vertical", 8),
    Sketcher.Constraint("Horizontal", 9),
    Sketcher.Constraint("Vertical", 10),
    Sketcher.Constraint("Horizontal", 11),
    Sketcher.Constraint("Vertical", 12),
    Sketcher.Constraint("Horizontal", 13),
    Sketcher.Constraint("Vertical", 14),
    Sketcher.Constraint("Horizontal", 15),
    Sketcher.Constraint("Symmetric", 4, 2, 8, 2, -1),
    Sketcher.Constraint("Symmetric", 0, 2, 12, 2, -1),
    Sketcher.Constraint("Horizontal", 1, 2, 4, 2),
    Sketcher.Constraint("Horizontal", 3, 2, 6, 2),
    Sketcher.Constraint("Horizontal", 11, 2, 14, 2),
    Sketcher.Constraint("Vertical", 6, 2, 9, 2),
    Sketcher.Constraint("Vertical", 2, 2, 13, 2),
    Sketcher.Constraint("Equal", 3, 5),
    Sketcher.Constraint("Equal", 6, 8),
    Sketcher.Constraint("DistanceX", 1, 1, 1, 2, Q("3 mm")),
    Sketcher.Constraint("DistanceY", 0, 2, 0, 1, Q("0.5 mm")),
    Sketcher.Constraint("DistanceX", 0, 2, -1, 1, Q("10 mm")),
    Sketcher.Constraint("DistanceY", -1, 1, 2, 2, Q("5 mm")),
    Sketcher.Constraint("DistanceX", -1, 1, 4, 2, Q("8 mm")),
])
sketch14.setExpression("Constraints[41]", "Params.sketch14_width")
sketch14.setExpression("Constraints[42]", "Params.sketch14_height")
pocket4 = body.newObject("PartDesign::Pocket", "Pocket003")
pocket4.Profile = sketch14
pocket4.setExpression("Length", "Params.pocket4_length")
pocket4.Reversed = True

# Sketch on XY plane
sketch15 = body.newObject("Sketcher::SketchObject", "Sketch014")
sketch15.AttachmentSupport = (doc.getObject("XY_Plane"), [""])
sketch15.MapMode = "FlatFace"
sketch15.AttachmentOffset = App.Placement(Vector(0, 0, 1), App.Rotation())
sketch15.addGeometry([
    Part.LineSegment(Vector(-10, 7, 0), Vector(-10, 6.5, 0)),  # 0
    Part.LineSegment(Vector(-10, 6.5, 0), Vector(-7, 6.5, 0)),  # 1
    Part.LineSegment(Vector(-7, 6.5, 0), Vector(-7, 7, 0)),  # 2
    Part.LineSegment(Vector(-7, 7, 0), Vector(-10, 7, 0)),  # 3
    Part.LineSegment(Vector(8, 7, 0), Vector(8, 6.5, 0)),  # 4
    Part.LineSegment(Vector(8, 6.5, 0), Vector(11, 6.5, 0)),  # 5
    Part.LineSegment(Vector(11, 6.5, 0), Vector(11, 7, 0)),  # 6
    Part.LineSegment(Vector(11, 7, 0), Vector(8, 7, 0)),  # 7
    Part.LineSegment(Vector(8, -6, 0), Vector(8, -6.5, 0)),  # 8
    Part.LineSegment(Vector(8, -6.5, 0), Vector(11, -6.5, 0)),  # 9
    Part.LineSegment(Vector(11, -6.5, 0), Vector(11, -6, 0)),  # 10
    Part.LineSegment(Vector(11, -6, 0), Vector(8, -6, 0)),  # 11
    Part.LineSegment(Vector(-10, -6, 0), Vector(-10, -6.5, 0)),  # 12
    Part.LineSegment(Vector(-10, -6.5, 0), Vector(-7, -6.5, 0)),  # 13
    Part.LineSegment(Vector(-7, -6.5, 0), Vector(-7, -6, 0)),  # 14
    Part.LineSegment(Vector(-7, -6, 0), Vector(-10, -6, 0)),  # 15
], False)
sketch15.addConstraint([
    Sketcher.Constraint("Coincident", 0, 2, 1, 1),
    Sketcher.Constraint("Coincident", 1, 2, 2, 1),
    Sketcher.Constraint("Coincident", 2, 2, 3, 1),
    Sketcher.Constraint("Coincident", 3, 2, 0, 1),
    Sketcher.Constraint("Coincident", 4, 2, 5, 1),
    Sketcher.Constraint("Coincident", 5, 2, 6, 1),
    Sketcher.Constraint("Coincident", 6, 2, 7, 1),
    Sketcher.Constraint("Coincident", 7, 2, 4, 1),
    Sketcher.Constraint("Coincident", 8, 2, 9, 1),
    Sketcher.Constraint("Coincident", 9, 2, 10, 1),
    Sketcher.Constraint("Coincident", 10, 2, 11, 1),
    Sketcher.Constraint("Coincident", 11, 2, 8, 1),
    Sketcher.Constraint("Coincident", 12, 2, 13, 1),
    Sketcher.Constraint("Coincident", 13, 2, 14, 1),
    Sketcher.Constraint("Coincident", 14, 2, 15, 1),
    Sketcher.Constraint("Coincident", 15, 2, 12, 1),
    Sketcher.Constraint("Vertical", 0),
    Sketcher.Constraint("Horizontal", 1),
    Sketcher.Constraint("Vertical", 2),
    Sketcher.Constraint("Horizontal", 3),
    Sketcher.Constraint("Vertical", 4),
    Sketcher.Constraint("Horizontal", 5),
    Sketcher.Constraint("Vertical", 6),
    Sketcher.Constraint("Horizontal", 7),
    Sketcher.Constraint("Vertical", 8),
    Sketcher.Constraint("Horizontal", 9),
    Sketcher.Constraint("Vertical", 10),
    Sketcher.Constraint("Horizontal", 11),
    Sketcher.Constraint("Vertical", 12),
    Sketcher.Constraint("Horizontal", 13),
    Sketcher.Constraint("Vertical", 14),
    Sketcher.Constraint("Horizontal", 15),
    Sketcher.Constraint("Symmetric", 4, 2, 8, 2, -1),
    Sketcher.Constraint("Symmetric", 0, 2, 12, 2, -1),
    Sketcher.Constraint("Horizontal", 1, 2, 4, 2),
    Sketcher.Constraint("Horizontal", 3, 2, 6, 2),
    Sketcher.Constraint("Horizontal", 11, 2, 14, 2),
    Sketcher.Constraint("Vertical", 6, 2, 9, 2),
    Sketcher.Constraint("Vertical", 2, 2, 13, 2),
    Sketcher.Constraint("Equal", 3, 5),
    Sketcher.Constraint("Equal", 6, 8),
    Sketcher.Constraint("DistanceX", 1, 1, 1, 2, Q("3 mm")),
    Sketcher.Constraint("DistanceY", 0, 2, 0, 1, Q("0.5 mm")),
    Sketcher.Constraint("DistanceX", 0, 2, -1, 1, Q("10 mm")),
    Sketcher.Constraint("DistanceY", -1, 1, 2, 2, Q("7 mm")),
    Sketcher.Constraint("DistanceX", -1, 1, 4, 2, Q("8 mm")),
])
sketch15.setExpression("Constraints[41]", "Params.sketch15_width")
sketch15.setExpression("Constraints[42]", "Params.sketch15_height")
pocket5 = body.newObject("PartDesign::Pocket", "Pocket004")
pocket5.Profile = sketch15
pocket5.setExpression("Length", "Params.pocket5_length")
pocket5.Reversed = True

doc.recompute()
